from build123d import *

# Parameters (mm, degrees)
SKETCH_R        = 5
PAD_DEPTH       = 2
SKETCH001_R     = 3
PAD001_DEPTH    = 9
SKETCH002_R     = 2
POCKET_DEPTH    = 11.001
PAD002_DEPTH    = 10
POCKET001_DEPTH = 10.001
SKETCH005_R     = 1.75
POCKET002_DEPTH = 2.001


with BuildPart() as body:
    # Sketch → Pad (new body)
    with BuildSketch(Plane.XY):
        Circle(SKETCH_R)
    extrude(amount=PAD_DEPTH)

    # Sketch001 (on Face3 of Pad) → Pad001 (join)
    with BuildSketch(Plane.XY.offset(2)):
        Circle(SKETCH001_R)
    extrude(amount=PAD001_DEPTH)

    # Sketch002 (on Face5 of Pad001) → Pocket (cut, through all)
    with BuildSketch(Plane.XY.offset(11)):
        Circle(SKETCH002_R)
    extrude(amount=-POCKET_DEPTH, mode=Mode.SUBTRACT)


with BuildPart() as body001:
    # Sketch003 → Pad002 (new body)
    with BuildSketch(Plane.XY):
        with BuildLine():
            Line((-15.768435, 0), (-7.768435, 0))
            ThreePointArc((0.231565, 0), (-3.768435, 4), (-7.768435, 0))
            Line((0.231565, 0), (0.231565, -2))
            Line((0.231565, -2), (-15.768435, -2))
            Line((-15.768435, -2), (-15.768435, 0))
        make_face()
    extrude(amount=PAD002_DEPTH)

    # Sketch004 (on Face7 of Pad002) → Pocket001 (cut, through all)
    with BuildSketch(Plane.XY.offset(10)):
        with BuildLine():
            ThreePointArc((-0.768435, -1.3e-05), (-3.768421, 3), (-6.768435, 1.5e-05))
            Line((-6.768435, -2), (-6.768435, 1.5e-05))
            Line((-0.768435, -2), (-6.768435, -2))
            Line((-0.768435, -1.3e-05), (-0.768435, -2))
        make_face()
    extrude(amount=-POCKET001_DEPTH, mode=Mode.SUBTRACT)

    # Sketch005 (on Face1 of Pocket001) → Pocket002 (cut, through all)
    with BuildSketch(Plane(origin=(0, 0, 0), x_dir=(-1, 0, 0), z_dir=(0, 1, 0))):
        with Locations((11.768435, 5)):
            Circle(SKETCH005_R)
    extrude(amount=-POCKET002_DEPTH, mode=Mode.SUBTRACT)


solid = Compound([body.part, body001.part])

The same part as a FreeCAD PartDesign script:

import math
import FreeCAD as App
import Part
import Sketcher

doc = App.newDocument("Part")
body = doc.addObject("PartDesign::Body", "Body")

sketch1 = doc.addObject("Sketcher::SketchObject", "Sketch")
body.addObject(sketch1)
sketch1.AttachmentSupport = (doc.XY_Plane, [""])
sketch1.MapMode = "FlatFace"
sketch1.addGeometry(Part.Circle(App.Vector(0, 0, 0), App.Vector(0, 0, 1), 5), False)
sketch1.addConstraint([
    Sketcher.Constraint("Coincident", 0, 3, -1, 1),
    Sketcher.Constraint("Diameter", 0, 10.0),
])
pad1 = doc.addObject("PartDesign::Pad", "Pad")
body.addObject(pad1)
pad1.Profile = sketch1
pad1.Length = 2

sketch2 = doc.addObject("Sketcher::SketchObject", "Sketch001")
body.addObject(sketch2)
sketch2.AttachmentSupport = (doc.XY_Plane, [""])
sketch2.MapMode = "FlatFace"
sketch2.AttachmentOffset = App.Placement(App.Vector(0, 0, 2), App.Rotation())
sketch2.addGeometry(Part.Circle(App.Vector(0, 0, 0), App.Vector(0, 0, 1), 3), False)
sketch2.addConstraint([
    Sketcher.Constraint("Coincident", 0, 3, -1, 1),
    Sketcher.Constraint("Diameter", 0, 6.0),
])
pad2 = doc.addObject("PartDesign::Pad", "Pad001")
body.addObject(pad2)
pad2.Profile = sketch2
pad2.Length = 9

sketch3 = doc.addObject("Sketcher::SketchObject", "Sketch002")
body.addObject(sketch3)
sketch3.AttachmentSupport = (doc.XY_Plane, [""])
sketch3.MapMode = "FlatFace"
sketch3.AttachmentOffset = App.Placement(App.Vector(0, 0, 11), App.Rotation())
sketch3.addGeometry(Part.Circle(App.Vector(0, 0, 0), App.Vector(0, 0, 1), 2), False)
sketch3.addConstraint([
    Sketcher.Constraint("Coincident", 0, 3, -1, 1),
    Sketcher.Constraint("Diameter", 0, 4.0),
])
pocket1 = doc.addObject("PartDesign::Pocket", "Pocket")
body.addObject(pocket1)
pocket1.Profile = sketch3
pocket1.Type = "ThroughAll"
body2 = doc.addObject("PartDesign::Body", "Body001")

sketch4 = doc.addObject("Sketcher::SketchObject", "Sketch003")
body2.addObject(sketch4)
sketch4.AttachmentSupport = (doc.getObject("XY_Plane001"), [""])
sketch4.MapMode = "FlatFace"
sketch4.addGeometry([
    Part.LineSegment(App.Vector(-7.768435, 0, 0), App.Vector(-15.768435, 0, 0)),
    Part.LineSegment(App.Vector(-15.768435, 0, 0), App.Vector(-15.768435, -2, 0)),
    Part.LineSegment(App.Vector(-15.768435, -2, 0), App.Vector(0.231565, -2, 0)),
    Part.LineSegment(App.Vector(0.231565, -2, 0), App.Vector(0.231565, 0, 0)),
    Part.ArcOfCircle(Part.Circle(App.Vector(-3.768435, 0, 0), App.Vector(0, 0, 1), 4), math.radians(0), math.radians(180)),
], False)
sketch4.addConstraint([
    Sketcher.Constraint("Coincident", 0, 2, 1, 1),
    Sketcher.Constraint("Coincident", 1, 2, 2, 1),
    Sketcher.Constraint("Coincident", 2, 2, 3, 1),
    Sketcher.Constraint("Tangent", 3, 2, 4, 1),
    Sketcher.Constraint("Coincident", 4, 2, 0, 1),
    Sketcher.Constraint("Horizontal", 0),
    Sketcher.Constraint("Vertical", 1),
    Sketcher.Constraint("Horizontal", 2),
    Sketcher.Constraint("Vertical", 3),
    Sketcher.Constraint("PointOnObject", 4, 3, -1),
    Sketcher.Constraint("PointOnObject", 0, 2, -1),
    Sketcher.Constraint("Radius", 4, 4.0),
    Sketcher.Constraint("DistanceX", 0, 2, 0, 1, 8.0),
    Sketcher.Constraint("DistanceY", 1, 2, 1, 1, 2.0),
    Sketcher.Constraint("DistanceX", 4, 3, -1, 1, 3.768435),
])
pad3 = doc.addObject("PartDesign::Pad", "Pad002")
body2.addObject(pad3)
pad3.Profile = sketch4
pad3.Length = 10

sketch5 = doc.addObject("Sketcher::SketchObject", "Sketch004")
body2.addObject(sketch5)
sketch5.AttachmentSupport = (doc.getObject("XY_Plane001"), [""])
sketch5.MapMode = "FlatFace"
sketch5.AttachmentOffset = App.Placement(App.Vector(0, 0, 10), App.Rotation())
sketch5.addGeometry([
    Part.ArcOfCircle(Part.Circle(App.Vector(-3.768435, 0, 0), App.Vector(0, 0, 1), 3), math.radians(-0.000248), math.radians(179.999714)),
    Part.LineSegment(App.Vector(-6.768435, 0.000015, 0), App.Vector(-6.768435, -2, 0)),
    Part.LineSegment(App.Vector(-6.768435, -2, 0), App.Vector(-0.768435, -2, 0)),
    Part.LineSegment(App.Vector(-0.768435, -2, 0), App.Vector(-0.768435, -0.000013, 0)),
], False)
sketch5.addConstraint([
    Sketcher.Constraint("Coincident", 0, 2, 1, 1),
    Sketcher.Constraint("Coincident", 1, 2, 2, 1),
    Sketcher.Constraint("Coincident", 2, 2, 3, 1),
    Sketcher.Constraint("Coincident", 3, 2, 0, 1),
    Sketcher.Constraint("Vertical", 1),
    Sketcher.Constraint("Horizontal", 2),
    Sketcher.Constraint("Vertical", 3),
    Sketcher.Constraint("PointOnObject", 0, 3, -1),
    Sketcher.Constraint("Radius", 0, 3.0),
    Sketcher.Constraint("DistanceY", 1, 2, -1, 1, 2.0),
    Sketcher.Constraint("DistanceY", 1, 2, 1, 1, 2.000015),
    Sketcher.Constraint("DistanceY", 3, 1, 3, 2, 1.999987),
    Sketcher.Constraint("DistanceX", 0, 3, -1, 1, 3.768435),
])
pocket2 = doc.addObject("PartDesign::Pocket", "Pocket001")
body2.addObject(pocket2)
pocket2.Profile = sketch5
pocket2.Type = "ThroughAll"

sketch6 = doc.addObject("Sketcher::SketchObject", "Sketch005")
body2.addObject(sketch6)
sketch6.AttachmentSupport = (doc.getObject("XZ_Plane001"), [""])
sketch6.MapMode = "FlatFace"
sketch6.addGeometry(Part.Circle(App.Vector(-11.768435, 5, 0), App.Vector(0, 0, 1), 1.75), False)
sketch6.addConstraint([
    Sketcher.Constraint("Diameter", 0, 3.5),
    Sketcher.Constraint("DistanceY", -1, 1, 0, 3, 5.0),
    Sketcher.Constraint("DistanceX", 0, 3, -1, 1, 11.768435),
])
pocket3 = doc.addObject("PartDesign::Pocket", "Pocket002")
body2.addObject(pocket3)
pocket3.Profile = sketch6
pocket3.Type = "ThroughAll"
pocket3.Reversed = True

doc.recompute()
